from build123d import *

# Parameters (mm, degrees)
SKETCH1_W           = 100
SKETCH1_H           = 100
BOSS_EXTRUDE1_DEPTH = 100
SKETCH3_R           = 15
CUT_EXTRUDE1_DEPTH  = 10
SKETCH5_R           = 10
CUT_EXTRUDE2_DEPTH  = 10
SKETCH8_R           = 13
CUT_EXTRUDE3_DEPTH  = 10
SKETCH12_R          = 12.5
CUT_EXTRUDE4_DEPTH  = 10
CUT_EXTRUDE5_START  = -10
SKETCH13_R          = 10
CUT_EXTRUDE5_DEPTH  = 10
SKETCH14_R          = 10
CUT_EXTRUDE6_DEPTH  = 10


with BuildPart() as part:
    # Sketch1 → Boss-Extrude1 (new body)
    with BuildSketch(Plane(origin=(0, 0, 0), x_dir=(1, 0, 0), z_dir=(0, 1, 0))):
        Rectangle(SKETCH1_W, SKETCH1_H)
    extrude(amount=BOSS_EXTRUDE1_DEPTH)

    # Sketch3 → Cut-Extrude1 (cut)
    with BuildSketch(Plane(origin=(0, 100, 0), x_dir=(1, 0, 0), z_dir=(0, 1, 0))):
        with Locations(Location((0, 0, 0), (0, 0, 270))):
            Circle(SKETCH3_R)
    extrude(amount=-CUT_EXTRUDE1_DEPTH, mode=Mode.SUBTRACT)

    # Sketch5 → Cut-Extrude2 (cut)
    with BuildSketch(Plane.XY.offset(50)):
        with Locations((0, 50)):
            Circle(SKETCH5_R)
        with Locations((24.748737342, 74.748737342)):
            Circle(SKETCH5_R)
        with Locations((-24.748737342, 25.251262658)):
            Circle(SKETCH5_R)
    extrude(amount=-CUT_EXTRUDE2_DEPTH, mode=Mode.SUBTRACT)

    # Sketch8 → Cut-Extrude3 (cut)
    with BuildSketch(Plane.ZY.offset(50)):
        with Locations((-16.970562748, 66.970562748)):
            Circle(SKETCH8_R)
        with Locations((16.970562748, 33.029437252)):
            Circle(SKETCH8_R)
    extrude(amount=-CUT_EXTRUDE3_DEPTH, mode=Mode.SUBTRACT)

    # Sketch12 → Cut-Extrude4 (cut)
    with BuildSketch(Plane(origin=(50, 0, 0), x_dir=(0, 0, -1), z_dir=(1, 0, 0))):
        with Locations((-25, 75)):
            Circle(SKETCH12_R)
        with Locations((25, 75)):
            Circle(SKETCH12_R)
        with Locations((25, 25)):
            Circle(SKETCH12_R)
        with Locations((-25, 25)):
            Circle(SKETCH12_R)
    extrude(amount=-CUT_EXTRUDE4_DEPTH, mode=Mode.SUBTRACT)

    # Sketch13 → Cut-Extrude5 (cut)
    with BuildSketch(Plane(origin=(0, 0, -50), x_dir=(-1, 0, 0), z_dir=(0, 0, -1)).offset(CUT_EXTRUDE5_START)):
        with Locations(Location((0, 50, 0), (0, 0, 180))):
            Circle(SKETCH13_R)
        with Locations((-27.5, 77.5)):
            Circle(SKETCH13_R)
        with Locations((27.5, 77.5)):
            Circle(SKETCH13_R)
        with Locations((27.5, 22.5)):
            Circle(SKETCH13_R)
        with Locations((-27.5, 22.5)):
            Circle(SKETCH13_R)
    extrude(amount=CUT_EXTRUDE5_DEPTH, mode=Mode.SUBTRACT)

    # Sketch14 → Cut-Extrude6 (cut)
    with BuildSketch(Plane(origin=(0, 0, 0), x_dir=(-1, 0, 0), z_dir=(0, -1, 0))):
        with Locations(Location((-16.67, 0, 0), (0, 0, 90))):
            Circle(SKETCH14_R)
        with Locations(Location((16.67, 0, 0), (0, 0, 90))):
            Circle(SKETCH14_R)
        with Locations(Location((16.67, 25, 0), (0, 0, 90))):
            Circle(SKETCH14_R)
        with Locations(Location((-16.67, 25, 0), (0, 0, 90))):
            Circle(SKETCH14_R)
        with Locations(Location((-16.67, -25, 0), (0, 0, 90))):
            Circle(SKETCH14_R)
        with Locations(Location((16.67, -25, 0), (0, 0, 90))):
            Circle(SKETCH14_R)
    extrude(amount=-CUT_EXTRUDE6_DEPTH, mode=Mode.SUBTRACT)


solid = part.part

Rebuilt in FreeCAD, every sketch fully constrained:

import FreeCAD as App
import Part
import Sketcher

V = App.Vector
Q = App.Units.Quantity


def add_polygon(sketch, points):
    """Adds a closed chain of lines whose ends are joined by coincident constraints."""
    first, n = sketch.GeometryCount, len(points)
    for a, b in zip(points, points[1:] + points[:1]):
        sketch.addGeometry(Part.LineSegment(App.Vector(*a, 0), App.Vector(*b, 0)), False)
    for i in range(n):
        sketch.addConstraint(Sketcher.Constraint("Coincident", first + i, 2, first + (i + 1) % n, 1))

doc = App.newDocument("Part")
body = doc.addObject("PartDesign::Body", "Body")

sketch1 = doc.addObject("Sketcher::SketchObject", "Sketch")
body.addObject(sketch1)
sketch1.AttachmentSupport = (doc.XZ_Plane, [""])
sketch1.MapMode = "FlatFace"
add_polygon(sketch1, [(-50, -50), (-50, 50), (50, 50), (50, -50)])
sketch1.addConstraint([
    Sketcher.Constraint("Vertical", 0),
    Sketcher.Constraint("Horizontal", 1),
    Sketcher.Constraint("Vertical", 2),
    Sketcher.Constraint("Horizontal", 3),
    Sketcher.Constraint("Symmetric", 0, 2, 2, 2, -1, 1),
    Sketcher.Constraint("Equal", 3, 0),
    Sketcher.Constraint("DistanceX", 1, 1, 1, 2, Q("100 mm")),
])
pad1 = doc.addObject("PartDesign::Pad", "Pad")
body.addObject(pad1)
pad1.Profile = sketch1
pad1.Length = 100
pad1.Reversed = True

sketch2 = doc.addObject("Sketcher::SketchObject", "Sketch001")
body.addObject(sketch2)
sketch2.AttachmentSupport = (doc.XZ_Plane, [""])
sketch2.MapMode = "FlatFace"
sketch2.AttachmentOffset = App.Placement(V(0, 0, -100), App.Rotation())
sketch2.addGeometry(Part.Circle(V(0, 0, 0), V(0, 0, 1), 15), False)
sketch2.addConstraint([
    Sketcher.Constraint("Coincident", 0, 3, -1, 1),
    Sketcher.Constraint("Diameter", 0, Q("30 mm")),
])
pocket1 = doc.addObject("PartDesign::Pocket", "Pocket")
body.addObject(pocket1)
pocket1.Profile = sketch2
pocket1.Length = 10
pocket1.Reversed = True

sketch3 = doc.addObject("Sketcher::SketchObject", "Sketch002")
body.addObject(sketch3)
sketch3.AttachmentSupport = (doc.XY_Plane, [""])
sketch3.MapMode = "FlatFace"
sketch3.AttachmentOffset = App.Placement(V(0, 0, 50), App.Rotation())
sketch3.addGeometry([
    Part.Circle(V(0, 50, 0), V(0, 0, 1), 10),
    Part.Circle(V(25, 75, 0), V(0, 0, 1), 10),
    Part.Circle(V(-25, 25, 0), V(0, 0, 1), 10),
], False)
sketch3.addConstraint([
    Sketcher.Constraint("Equal", 0, 1),
    Sketcher.Constraint("Equal", 1, 2),
    Sketcher.Constraint("PointOnObject", 0, 3, -2),
    Sketcher.Constraint("Diameter", 0, Q("20 mm")),
    Sketcher.Constraint("DistanceY", -1, 1, 0, 3, Q("50 mm")),
    Sketcher.Constraint("DistanceX", -1, 1, 1, 3, Q("24.748737 mm")),
    Sketcher.Constraint("DistanceY", -1, 1, 1, 3, Q("74.748737 mm")),
    Sketcher.Constraint("DistanceX", 2, 3, -1, 1, Q("24.748737 mm")),
    Sketcher.Constraint("DistanceY", -1, 1, 2, 3, Q("25.251263 mm")),
])
pocket2 = doc.addObject("PartDesign::Pocket", "Pocket001")
body.addObject(pocket2)
pocket2.Profile = sketch3
pocket2.Length = 10

sketch4 = doc.addObject("Sketcher::SketchObject", "Sketch003")
body.addObject(sketch4)
sketch4.AttachmentSupport = (doc.YZ_Plane, [""])
sketch4.MapMode = "FlatFace"
sketch4.AttachmentOffset = App.Placement(V(0, 0, -50), App.Rotation())
sketch4.addGeometry([
    Part.Circle(V(67, -17, 0), V(0, 0, 1), 13),
    Part.Circle(V(33, 17, 0), V(0, 0, 1), 13),
], False)
sketch4.addConstraint([
    Sketcher.Constraint("Equal", 0, 1),
    Sketcher.Constraint("Diameter", 0, Q("26 mm")),
    Sketcher.Constraint("DistanceX", -1, 1, 0, 3, Q("66.970563 mm")),
    Sketcher.Constraint("DistanceY", 0, 3, -1, 1, Q("16.970563 mm")),
    Sketcher.Constraint("DistanceX", -1, 1, 1, 3, Q("33.029437 mm")),
    Sketcher.Constraint("DistanceY", -1, 1, 1, 3, Q("16.970563 mm")),
])
pocket3 = doc.addObject("PartDesign::Pocket", "Pocket002")
body.addObject(pocket3)
pocket3.Profile = sketch4
pocket3.Length = 10
pocket3.Reversed = True

sketch5 = doc.addObject("Sketcher::SketchObject", "Sketch004")
body.addObject(sketch5)
sketch5.AttachmentSupport = (doc.YZ_Plane, [""])
sketch5.MapMode = "FlatFace"
sketch5.AttachmentOffset = App.Placement(V(0, 0, 50), App.Rotation())
sketch5.addGeometry([
    Part.Circle(V(75, 25, 0), V(0, 0, 1), 12),
    Part.Circle(V(75, -25, 0), V(0, 0, 1), 12),
    Part.Circle(V(25, -25, 0), V(0, 0, 1), 12),
    Part.Circle(V(25, 25, 0), V(0, 0, 1), 12),
], False)
sketch5.addConstraint([
    Sketcher.Constraint("Equal", 0, 1),
    Sketcher.Constraint("Equal", 1, 2),
    Sketcher.Constraint("Equal", 2, 3),
    Sketcher.Constraint("Symmetric", 0, 3, 1, 3, -1),
    Sketcher.Constraint("Symmetric", 2, 3, 3, 3, -1),
    Sketcher.Constraint("Horizontal", 1, 3, 2, 3),
    Sketcher.Constraint("Diameter", 0, Q("25 mm")),
    Sketcher.Constraint("DistanceX", -1, 1, 0, 3, Q("75 mm")),
    Sketcher.Constraint("DistanceY", -1, 1, 0, 3, Q("25 mm")),
    Sketcher.Constraint("DistanceX", -1, 1, 2, 3, Q("25 mm")),
])
pocket4 = doc.addObject("PartDesign::Pocket", "Pocket003")
body.addObject(pocket4)
pocket4.Profile = sketch5
pocket4.Length = 10

sketch6 = doc.addObject("Sketcher::SketchObject", "Sketch005")
body.addObject(sketch6)
sketch6.AttachmentSupport = (doc.XY_Plane, [""])
sketch6.MapMode = "FlatFace"
sketch6.AttachmentOffset = App.Placement(V(0, 0, -40), App.Rotation())
sketch6.addGeometry([
    Part.Circle(V(0, 50, 0), V(0, 0, 1), 10),
    Part.Circle(V(28, 78, 0), V(0, 0, 1), 10),
    Part.Circle(V(-28, 78, 0), V(0, 0, 1), 10),
    Part.Circle(V(-28, 22, 0), V(0, 0, 1), 10),
    Part.Circle(V(28, 22, 0), V(0, 0, 1), 10),
], False)
sketch6.addConstraint([
    Sketcher.Constraint("Equal", 0, 1),
    Sketcher.Constraint("Equal", 1, 2),
    Sketcher.Constraint("Equal", 2, 3),
    Sketcher.Constraint("Equal", 3, 4),
    Sketcher.Constraint("Symmetric", 1, 3, 2, 3, -2),
    Sketcher.Constraint("Symmetric", 3, 3, 4, 3, -2),
    Sketcher.Constraint("PointOnObject", 0, 3, -2),
    Sketcher.Constraint("Vertical", 2, 3, 3, 3),
    Sketcher.Constraint("Diameter", 0, Q("20 mm")),
    Sketcher.Constraint("DistanceY", -1, 1, 0, 3, Q("50 mm")),
    Sketcher.Constraint("DistanceX", 2, 3, 1, 3, Q("55 mm")),
    Sketcher.Constraint("DistanceY", 3, 3, 2, 3, Q("55 mm")),
    Sketcher.Constraint("DistanceY", -1, 1, 1, 3, Q("77.5 mm")),
])
pocket5 = doc.addObject("PartDesign::Pocket", "Pocket004")
body.addObject(pocket5)
pocket5.Profile = sketch6
pocket5.Length = 10

sketch7 = doc.addObject("Sketcher::SketchObject", "Sketch006")
body.addObject(sketch7)
sketch7.AttachmentSupport = (doc.XZ_Plane, [""])
sketch7.MapMode = "FlatFace"
sketch7.addGeometry([
    Part.Circle(V(17, 0, 0), V(0, 0, 1), 10),
    Part.Circle(V(-17, 0, 0), V(0, 0, 1), 10),
    Part.Circle(V(-17, -25, 0), V(0, 0, 1), 10),
    Part.Circle(V(17, -25, 0), V(0, 0, 1), 10),
    Part.Circle(V(17, 25, 0), V(0, 0, 1), 10),
    Part.Circle(V(-17, 25, 0), V(0, 0, 1), 10),
], False)
sketch7.addConstraint([
    Sketcher.Constraint("Equal", 0, 1),
    Sketcher.Constraint("Equal", 1, 2),
    Sketcher.Constraint("Equal", 2, 3),
    Sketcher.Constraint("Equal", 3, 4),
    Sketcher.Constraint("Equal", 4, 5),
    Sketcher.Constraint("Symmetric", 0, 3, 1, 3, -1, 1),
    Sketcher.Constraint("Symmetric", 2, 3, 4, 3, -1, 1),
    Sketcher.Constraint("Symmetric", 3, 3, 5, 3, -1, 1),
    Sketcher.Constraint("Symmetric", 2, 3, 3, 3, -2),
    Sketcher.Constraint("PointOnObject", 0, 3, -1),
    Sketcher.Constraint("Vertical", 1, 3, 2, 3),
    Sketcher.Constraint("Diameter", 0, Q("20 mm")),
    Sketcher.Constraint("DistanceY", 2, 3, -1, 1, Q("25 mm")),
    Sketcher.Constraint("DistanceX", -1, 1, 0, 3, Q("16.67 mm")),
])
pocket6 = doc.addObject("PartDesign::Pocket", "Pocket005")
body.addObject(pocket6)
pocket6.Profile = sketch7
pocket6.Length = 10

doc.recompute()
